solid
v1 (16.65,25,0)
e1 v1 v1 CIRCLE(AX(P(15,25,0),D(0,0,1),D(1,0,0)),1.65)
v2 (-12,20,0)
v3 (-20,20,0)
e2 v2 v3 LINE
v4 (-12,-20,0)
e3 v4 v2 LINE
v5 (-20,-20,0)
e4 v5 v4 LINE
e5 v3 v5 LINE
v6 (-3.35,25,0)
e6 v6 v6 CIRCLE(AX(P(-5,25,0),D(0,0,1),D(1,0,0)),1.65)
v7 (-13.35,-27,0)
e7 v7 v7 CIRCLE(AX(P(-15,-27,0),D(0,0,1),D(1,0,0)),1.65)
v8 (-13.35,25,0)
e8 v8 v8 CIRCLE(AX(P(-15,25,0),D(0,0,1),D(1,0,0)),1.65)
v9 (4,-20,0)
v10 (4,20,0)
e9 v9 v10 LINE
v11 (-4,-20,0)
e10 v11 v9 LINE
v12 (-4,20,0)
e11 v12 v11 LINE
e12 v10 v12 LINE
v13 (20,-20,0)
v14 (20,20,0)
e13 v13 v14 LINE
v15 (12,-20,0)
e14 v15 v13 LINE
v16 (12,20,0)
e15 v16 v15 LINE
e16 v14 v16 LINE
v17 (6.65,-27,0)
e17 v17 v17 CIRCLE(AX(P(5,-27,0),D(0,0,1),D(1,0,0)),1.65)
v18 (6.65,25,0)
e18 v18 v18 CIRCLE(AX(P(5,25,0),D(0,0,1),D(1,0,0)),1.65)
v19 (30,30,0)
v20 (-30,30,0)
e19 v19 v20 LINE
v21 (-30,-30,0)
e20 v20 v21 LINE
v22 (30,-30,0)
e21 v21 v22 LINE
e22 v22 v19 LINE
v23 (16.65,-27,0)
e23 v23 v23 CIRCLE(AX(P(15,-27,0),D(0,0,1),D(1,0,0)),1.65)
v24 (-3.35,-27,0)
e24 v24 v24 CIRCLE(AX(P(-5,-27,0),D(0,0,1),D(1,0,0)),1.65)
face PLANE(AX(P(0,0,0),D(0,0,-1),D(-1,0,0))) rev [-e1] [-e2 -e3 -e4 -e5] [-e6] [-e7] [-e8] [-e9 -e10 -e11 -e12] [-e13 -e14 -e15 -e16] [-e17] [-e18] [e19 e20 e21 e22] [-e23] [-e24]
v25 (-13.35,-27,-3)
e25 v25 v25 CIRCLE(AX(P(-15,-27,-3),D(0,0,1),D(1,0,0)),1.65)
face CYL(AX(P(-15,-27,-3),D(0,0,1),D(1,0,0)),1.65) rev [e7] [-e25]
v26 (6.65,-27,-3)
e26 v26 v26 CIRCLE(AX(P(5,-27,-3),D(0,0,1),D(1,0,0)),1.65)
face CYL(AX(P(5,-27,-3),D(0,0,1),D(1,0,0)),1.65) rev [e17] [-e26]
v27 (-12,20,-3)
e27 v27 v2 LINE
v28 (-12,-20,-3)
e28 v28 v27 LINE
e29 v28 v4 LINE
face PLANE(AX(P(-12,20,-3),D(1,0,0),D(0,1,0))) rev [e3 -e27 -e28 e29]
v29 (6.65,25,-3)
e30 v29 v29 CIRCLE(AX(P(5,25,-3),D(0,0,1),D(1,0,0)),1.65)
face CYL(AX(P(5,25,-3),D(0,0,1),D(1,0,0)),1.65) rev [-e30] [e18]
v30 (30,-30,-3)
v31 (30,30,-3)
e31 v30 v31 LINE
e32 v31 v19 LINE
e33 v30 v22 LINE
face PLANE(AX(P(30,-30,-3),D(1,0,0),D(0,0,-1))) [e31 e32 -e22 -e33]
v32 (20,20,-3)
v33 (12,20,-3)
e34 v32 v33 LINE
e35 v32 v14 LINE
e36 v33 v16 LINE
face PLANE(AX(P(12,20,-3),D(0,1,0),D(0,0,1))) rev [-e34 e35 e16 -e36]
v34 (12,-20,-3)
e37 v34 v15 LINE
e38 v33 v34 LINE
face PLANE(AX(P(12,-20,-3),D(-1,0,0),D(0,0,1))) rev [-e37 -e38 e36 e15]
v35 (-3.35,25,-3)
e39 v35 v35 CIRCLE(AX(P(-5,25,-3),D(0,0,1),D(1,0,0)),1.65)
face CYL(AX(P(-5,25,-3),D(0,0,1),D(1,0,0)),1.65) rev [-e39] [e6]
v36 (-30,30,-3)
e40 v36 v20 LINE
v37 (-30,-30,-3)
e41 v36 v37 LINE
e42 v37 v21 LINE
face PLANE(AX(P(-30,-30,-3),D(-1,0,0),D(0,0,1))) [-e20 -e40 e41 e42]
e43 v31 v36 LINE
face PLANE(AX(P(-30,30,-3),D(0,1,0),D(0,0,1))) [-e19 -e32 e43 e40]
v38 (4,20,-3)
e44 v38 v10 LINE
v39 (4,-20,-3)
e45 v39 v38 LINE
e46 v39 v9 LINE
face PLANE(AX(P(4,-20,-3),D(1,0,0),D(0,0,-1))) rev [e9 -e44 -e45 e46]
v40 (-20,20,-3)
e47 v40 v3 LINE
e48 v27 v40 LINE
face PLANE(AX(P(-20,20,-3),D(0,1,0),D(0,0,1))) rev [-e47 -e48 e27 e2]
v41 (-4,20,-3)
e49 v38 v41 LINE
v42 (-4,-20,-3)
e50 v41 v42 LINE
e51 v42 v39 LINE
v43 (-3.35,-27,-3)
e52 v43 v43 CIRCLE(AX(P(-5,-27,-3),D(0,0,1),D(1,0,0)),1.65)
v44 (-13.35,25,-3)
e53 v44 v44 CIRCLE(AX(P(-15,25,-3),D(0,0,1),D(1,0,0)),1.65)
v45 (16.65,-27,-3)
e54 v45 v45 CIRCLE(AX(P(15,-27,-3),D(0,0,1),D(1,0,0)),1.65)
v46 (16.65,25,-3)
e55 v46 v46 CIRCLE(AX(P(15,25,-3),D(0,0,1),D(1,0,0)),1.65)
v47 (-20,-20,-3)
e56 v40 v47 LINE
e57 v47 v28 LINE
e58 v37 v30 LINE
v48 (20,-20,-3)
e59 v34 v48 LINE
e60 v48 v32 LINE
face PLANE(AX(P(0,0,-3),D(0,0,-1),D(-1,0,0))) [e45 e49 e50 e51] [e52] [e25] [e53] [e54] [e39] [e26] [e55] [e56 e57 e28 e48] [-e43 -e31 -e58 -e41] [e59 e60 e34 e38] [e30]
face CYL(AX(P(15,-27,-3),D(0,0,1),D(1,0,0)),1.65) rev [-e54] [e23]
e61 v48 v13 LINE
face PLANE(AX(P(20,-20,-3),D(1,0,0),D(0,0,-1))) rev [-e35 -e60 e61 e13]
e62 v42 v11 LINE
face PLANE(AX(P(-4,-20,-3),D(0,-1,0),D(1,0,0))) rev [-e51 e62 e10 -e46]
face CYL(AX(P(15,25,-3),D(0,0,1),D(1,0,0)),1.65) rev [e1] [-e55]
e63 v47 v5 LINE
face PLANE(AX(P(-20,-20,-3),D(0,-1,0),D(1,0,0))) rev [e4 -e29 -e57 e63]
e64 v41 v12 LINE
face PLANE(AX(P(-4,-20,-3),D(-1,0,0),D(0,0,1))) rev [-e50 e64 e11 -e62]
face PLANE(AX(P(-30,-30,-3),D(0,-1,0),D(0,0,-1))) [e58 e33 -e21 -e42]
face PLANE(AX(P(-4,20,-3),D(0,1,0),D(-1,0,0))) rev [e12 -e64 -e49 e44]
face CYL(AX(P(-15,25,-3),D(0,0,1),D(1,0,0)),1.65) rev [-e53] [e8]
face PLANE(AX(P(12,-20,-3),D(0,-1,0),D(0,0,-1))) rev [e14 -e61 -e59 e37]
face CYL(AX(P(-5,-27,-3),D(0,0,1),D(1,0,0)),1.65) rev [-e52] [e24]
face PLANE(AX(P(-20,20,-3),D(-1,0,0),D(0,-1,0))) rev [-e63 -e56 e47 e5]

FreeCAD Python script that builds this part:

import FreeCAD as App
import Part
import Sketcher
Q = App.Units.Quantity


def add_polygon(sketch, points):
    """Adds a closed chain of lines whose ends are joined by coincident constraints."""
    first, n = sketch.GeometryCount, len(points)
    for a, b in zip(points, points[1:] + points[:1]):
        sketch.addGeometry(Part.LineSegment(App.Vector(*a, 0), App.Vector(*b, 0)), False)
    for i in range(n):
        sketch.addConstraint(Sketcher.Constraint("Coincident", first + i, 2, first + (i + 1) % n, 1))

doc = App.newDocument("Part")
params = doc.addObject("Spreadsheet::Sheet", "Params")
for row, (alias, value) in enumerate([
    ("sketch1_diameter", "3.3 mm"),
    ("sketch1_width", "60 mm"),
    ("pad1_length", "3 mm"),
    ("sketch2_width", "8 mm"),
    ("sketch2_height", "40 mm"),
    ("pocket1_length", "3 mm"),
], start=1):
    params.set(f"A{row}", alias)
    params.set(f"B{row}", "=" + value)
    params.setAlias(f"B{row}", alias)

body = doc.addObject("PartDesign::Body", "Body")

# Sketch on XY plane
sketch1 = body.newObject("Sketcher::SketchObject", "Sketch")
sketch1.AttachmentSupport = (doc.getObject("XY_Plane"), [""])
sketch1.MapMode = "FlatFace"
add_polygon(sketch1, [(-30, 30), (-30, -30), (30, -30), (30, 30)])  # lines 0-3
sketch1.addGeometry(Part.Circle(App.Vector(-15, -27, 0), App.Vector(0, 0, 1), 1.65), False)  # 4
sketch1.addGeometry(Part.Circle(App.Vector(-5, -27, 0), App.Vector(0, 0, 1), 1.65), False)  # 5
sketch1.addGeometry(Part.Circle(App.Vector(5, -27, 0), App.Vector(0, 0, 1), 1.65), False)  # 6
sketch1.addGeometry(Part.Circle(App.Vector(15, -27, 0), App.Vector(0, 0, 1), 1.65), False)  # 7
sketch1.addGeometry(Part.Circle(App.Vector(-15, 25, 0), App.Vector(0, 0, 1), 1.65), False)  # 8
sketch1.addGeometry(Part.Circle(App.Vector(-5, 25, 0), App.Vector(0, 0, 1), 1.65), False)  # 9
sketch1.addGeometry(Part.Circle(App.Vector(5, 25, 0), App.Vector(0, 0, 1), 1.65), False)  # 10
sketch1.addGeometry(Part.Circle(App.Vector(15, 25, 0), App.Vector(0, 0, 1), 1.65), False)  # 11
sketch1.addConstraint(Sketcher.Constraint("Vertical", 0))
sketch1.addConstraint(Sketcher.Constraint("Horizontal", 1))
sketch1.addConstraint(Sketcher.Constraint("Vertical", 2))
sketch1.addConstraint(Sketcher.Constraint("Horizontal", 3))
sketch1.addConstraint(Sketcher.Constraint("Equal", 4, 5))
sketch1.addConstraint(Sketcher.Constraint("Equal", 5, 6))
sketch1.addConstraint(Sketcher.Constraint("Equal", 6, 7))
sketch1.addConstraint(Sketcher.Constraint("Equal", 7, 8))
sketch1.addConstraint(Sketcher.Constraint("Equal", 8, 9))
sketch1.addConstraint(Sketcher.Constraint("Equal", 9, 10))
sketch1.addConstraint(Sketcher.Constraint("Equal", 10, 11))
sketch1.addConstraint(Sketcher.Constraint("Symmetric", 0, 2, 2, 2, -1, 1))
sketch1.addConstraint(Sketcher.Constraint("Symmetric", 5, 3, 6, 3, -2))
sketch1.addConstraint(Sketcher.Constraint("Symmetric", 4, 3, 7, 3, -2))
sketch1.addConstraint(Sketcher.Constraint("Symmetric", 9, 3, 10, 3, -2))
sketch1.addConstraint(Sketcher.Constraint("Symmetric", 8, 3, 11, 3, -2))
sketch1.addConstraint(Sketcher.Constraint("Horizontal", 4, 3, 5, 3))
sketch1.addConstraint(Sketcher.Constraint("Horizontal", 8, 3, 9, 3))
sketch1.addConstraint(Sketcher.Constraint("Vertical", 4, 3, 8, 3))
sketch1.addConstraint(Sketcher.Constraint("Vertical", 5, 3, 9, 3))
sketch1.addConstraint(Sketcher.Constraint("Equal", 3, 0))
sketch1.addConstraint(Sketcher.Constraint("Diameter", 4, Q("3.3 mm")))
sketch1.addConstraint(Sketcher.Constraint("DistanceX", 1, 1, 1, 2, Q("60 mm")))
sketch1.addConstraint(Sketcher.Constraint("DistanceX", 4, 3, -1, 1, Q("15 mm")))
sketch1.addConstraint(Sketcher.Constraint("DistanceY", 4, 3, -1, 1, Q("27 mm")))
sketch1.addConstraint(Sketcher.Constraint("DistanceX", 5, 3, -1, 1, Q("5 mm")))
sketch1.addConstraint(Sketcher.Constraint("DistanceY", -1, 1, 8, 3, Q("25 mm")))
sketch1.setExpression("Constraints[25]", "Params.sketch1_diameter")
sketch1.setExpression("Constraints[26]", "Params.sketch1_width")
pad1 = body.newObject("PartDesign::Pad", "Pad")
pad1.Profile = sketch1
pad1.setExpression("Length", "Params.pad1_length")
pad1.Reversed = True

# Sketch on XY plane
sketch2 = body.newObject("Sketcher::SketchObject", "Sketch001")
sketch2.AttachmentSupport = (doc.getObject("XY_Plane"), [""])
sketch2.MapMode = "FlatFace"
add_polygon(sketch2, [(-20, 20), (-20, -20), (-12, -20), (-12, 20)])  # lines 0-3
add_polygon(sketch2, [(-4, 20), (-4, -20), (4, -20), (4, 20)])  # lines 4-7
add_polygon(sketch2, [(12, 20), (12, -20), (20, -20), (20, 20)])  # lines 8-11
sketch2.addConstraint(Sketcher.Constraint("Vertical", 0))
sketch2.addConstraint(Sketcher.Constraint("Horizontal", 1))
sketch2.addConstraint(Sketcher.Constraint("Vertical", 2))
sketch2.addConstraint(Sketcher.Constraint("Horizontal", 3))
sketch2.addConstraint(Sketcher.Constraint("Vertical", 4))
sketch2.addConstraint(Sketcher.Constraint("Horizontal", 5))
sketch2.addConstraint(Sketcher.Constraint("Vertical", 6))
sketch2.addConstraint(Sketcher.Constraint("Horizontal", 7))
sketch2.addConstraint(Sketcher.Constraint("Vertical", 8))
sketch2.addConstraint(Sketcher.Constraint("Horizontal", 9))
sketch2.addConstraint(Sketcher.Constraint("Vertical", 10))
sketch2.addConstraint(Sketcher.Constraint("Horizontal", 11))
sketch2.addConstraint(Sketcher.Constraint("Symmetric", 4, 2, 6, 2, -1, 1))
sketch2.addConstraint(Sketcher.Constraint("Symmetric", 2, 2, 8, 2, -1, 1))
sketch2.addConstraint(Sketcher.Constraint("Symmetric", 0, 2, 10, 2, -1, 1))
sketch2.addConstraint(Sketcher.Constraint("Horizontal", 1, 2, 4, 2))
sketch2.addConstraint(Sketcher.Constraint("Horizontal", 3, 2, 6, 2))
sketch2.addConstraint(Sketcher.Constraint("Equal", 3, 5))
sketch2.addConstraint(Sketcher.Constraint("DistanceX", 1, 1, 1, 2, Q("8 mm")))
sketch2.addConstraint(Sketcher.Constraint("DistanceY", 0, 2, 0, 1, Q("40 mm")))
sketch2.addConstraint(Sketcher.Constraint("DistanceX", 0, 2, -1, 1, Q("20 mm")))
sketch2.setExpression("Constraints[30]", "Params.sketch2_width")
sketch2.setExpression("Constraints[31]", "Params.sketch2_height")
pocket1 = body.newObject("PartDesign::Pocket", "Pocket")
pocket1.Profile = sketch2
pocket1.setExpression("Length", "Params.pocket1_length")

doc.recompute()
